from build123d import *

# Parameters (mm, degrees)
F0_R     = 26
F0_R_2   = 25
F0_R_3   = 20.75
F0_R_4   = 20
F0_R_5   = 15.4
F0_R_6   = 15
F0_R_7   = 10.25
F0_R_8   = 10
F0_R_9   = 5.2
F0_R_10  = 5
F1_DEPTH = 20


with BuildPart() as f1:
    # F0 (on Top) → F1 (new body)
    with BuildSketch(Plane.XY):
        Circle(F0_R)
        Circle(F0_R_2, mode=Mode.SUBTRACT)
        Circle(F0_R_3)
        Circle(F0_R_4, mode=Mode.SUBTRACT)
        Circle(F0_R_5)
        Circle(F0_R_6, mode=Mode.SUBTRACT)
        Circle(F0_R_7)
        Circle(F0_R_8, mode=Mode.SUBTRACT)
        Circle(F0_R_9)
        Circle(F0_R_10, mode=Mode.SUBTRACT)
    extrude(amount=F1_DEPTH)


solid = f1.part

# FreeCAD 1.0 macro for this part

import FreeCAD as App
import Part
import Sketcher
Q = App.Units.Quantity

doc = App.newDocument("Part")
body = doc.addObject("PartDesign::Body", "Body")
body.AllowCompound = True

# Sketch on XY plane
sketch1 = body.newObject("Sketcher::SketchObject", "Sketch")
sketch1.AttachmentSupport = (doc.getObject("XY_Plane"), [""])
sketch1.MapMode = "FlatFace"
sketch1.addGeometry([
    Part.Circle(App.Vector(0, 0, 0), App.Vector(0, 0, 1), 26),  # 0
    Part.Circle(App.Vector(0, 0, 0), App.Vector(0, 0, 1), 25),  # 1
    Part.Circle(App.Vector(0, 0, 0), App.Vector(0, 0, 1), 21),  # 2
    Part.Circle(App.Vector(0, 0, 0), App.Vector(0, 0, 1), 20),  # 3
    Part.Circle(App.Vector(0, 0, 0), App.Vector(0, 0, 1), 15),  # 4
    Part.Circle(App.Vector(0, 0, 0), App.Vector(0, 0, 1), 15),  # 5
    Part.Circle(App.Vector(0, 0, 0), App.Vector(0, 0, 1), 10),  # 6
    Part.Circle(App.Vector(0, 0, 0), App.Vector(0, 0, 1), 10),  # 7
    Part.Circle(App.Vector(0, 0, 0), App.Vector(0, 0, 1), 5),  # 8
    Part.Circle(App.Vector(0, 0, 0), App.Vector(0, 0, 1), 5),  # 9
], False)
sketch1.addConstraint([
    Sketcher.Constraint("Coincident", 0, 3, -1, 1),
    Sketcher.Constraint("Coincident", 1, 3, -1, 1),
    Sketcher.Constraint("Coincident", 2, 3, -1, 1),
    Sketcher.Constraint("Coincident", 3, 3, -1, 1),
    Sketcher.Constraint("Coincident", 4, 3, -1, 1),
    Sketcher.Constraint("Coincident", 5, 3, -1, 1),
    Sketcher.Constraint("Coincident", 6, 3, -1, 1),
    Sketcher.Constraint("Coincident", 7, 3, -1, 1),
    Sketcher.Constraint("Coincident", 8, 3, -1, 1),
    Sketcher.Constraint("Coincident", 9, 3, -1, 1),
    Sketcher.Constraint("Diameter", 0, Q("52 mm")),
    Sketcher.Constraint("Diameter", 1, Q("50 mm")),
    Sketcher.Constraint("Diameter", 3, Q("40 mm")),
    Sketcher.Constraint("Diameter", 5, Q("30 mm")),
    Sketcher.Constraint("Diameter", 7, Q("20 mm")),
    Sketcher.Constraint("Diameter", 9, Q("10 mm")),
    Sketcher.Constraint("Diameter", 2, Q("41.5 mm")),
    Sketcher.Constraint("Diameter", 4, Q("30.8 mm")),
    Sketcher.Constraint("Diameter", 6, Q("20.5 mm")),
    Sketcher.Constraint("Diameter", 8, Q("10.4 mm")),
])
pad1 = body.newObject("PartDesign::Pad", "Pad")
pad1.Profile = sketch1
pad1.Length = 20

doc.recompute()
